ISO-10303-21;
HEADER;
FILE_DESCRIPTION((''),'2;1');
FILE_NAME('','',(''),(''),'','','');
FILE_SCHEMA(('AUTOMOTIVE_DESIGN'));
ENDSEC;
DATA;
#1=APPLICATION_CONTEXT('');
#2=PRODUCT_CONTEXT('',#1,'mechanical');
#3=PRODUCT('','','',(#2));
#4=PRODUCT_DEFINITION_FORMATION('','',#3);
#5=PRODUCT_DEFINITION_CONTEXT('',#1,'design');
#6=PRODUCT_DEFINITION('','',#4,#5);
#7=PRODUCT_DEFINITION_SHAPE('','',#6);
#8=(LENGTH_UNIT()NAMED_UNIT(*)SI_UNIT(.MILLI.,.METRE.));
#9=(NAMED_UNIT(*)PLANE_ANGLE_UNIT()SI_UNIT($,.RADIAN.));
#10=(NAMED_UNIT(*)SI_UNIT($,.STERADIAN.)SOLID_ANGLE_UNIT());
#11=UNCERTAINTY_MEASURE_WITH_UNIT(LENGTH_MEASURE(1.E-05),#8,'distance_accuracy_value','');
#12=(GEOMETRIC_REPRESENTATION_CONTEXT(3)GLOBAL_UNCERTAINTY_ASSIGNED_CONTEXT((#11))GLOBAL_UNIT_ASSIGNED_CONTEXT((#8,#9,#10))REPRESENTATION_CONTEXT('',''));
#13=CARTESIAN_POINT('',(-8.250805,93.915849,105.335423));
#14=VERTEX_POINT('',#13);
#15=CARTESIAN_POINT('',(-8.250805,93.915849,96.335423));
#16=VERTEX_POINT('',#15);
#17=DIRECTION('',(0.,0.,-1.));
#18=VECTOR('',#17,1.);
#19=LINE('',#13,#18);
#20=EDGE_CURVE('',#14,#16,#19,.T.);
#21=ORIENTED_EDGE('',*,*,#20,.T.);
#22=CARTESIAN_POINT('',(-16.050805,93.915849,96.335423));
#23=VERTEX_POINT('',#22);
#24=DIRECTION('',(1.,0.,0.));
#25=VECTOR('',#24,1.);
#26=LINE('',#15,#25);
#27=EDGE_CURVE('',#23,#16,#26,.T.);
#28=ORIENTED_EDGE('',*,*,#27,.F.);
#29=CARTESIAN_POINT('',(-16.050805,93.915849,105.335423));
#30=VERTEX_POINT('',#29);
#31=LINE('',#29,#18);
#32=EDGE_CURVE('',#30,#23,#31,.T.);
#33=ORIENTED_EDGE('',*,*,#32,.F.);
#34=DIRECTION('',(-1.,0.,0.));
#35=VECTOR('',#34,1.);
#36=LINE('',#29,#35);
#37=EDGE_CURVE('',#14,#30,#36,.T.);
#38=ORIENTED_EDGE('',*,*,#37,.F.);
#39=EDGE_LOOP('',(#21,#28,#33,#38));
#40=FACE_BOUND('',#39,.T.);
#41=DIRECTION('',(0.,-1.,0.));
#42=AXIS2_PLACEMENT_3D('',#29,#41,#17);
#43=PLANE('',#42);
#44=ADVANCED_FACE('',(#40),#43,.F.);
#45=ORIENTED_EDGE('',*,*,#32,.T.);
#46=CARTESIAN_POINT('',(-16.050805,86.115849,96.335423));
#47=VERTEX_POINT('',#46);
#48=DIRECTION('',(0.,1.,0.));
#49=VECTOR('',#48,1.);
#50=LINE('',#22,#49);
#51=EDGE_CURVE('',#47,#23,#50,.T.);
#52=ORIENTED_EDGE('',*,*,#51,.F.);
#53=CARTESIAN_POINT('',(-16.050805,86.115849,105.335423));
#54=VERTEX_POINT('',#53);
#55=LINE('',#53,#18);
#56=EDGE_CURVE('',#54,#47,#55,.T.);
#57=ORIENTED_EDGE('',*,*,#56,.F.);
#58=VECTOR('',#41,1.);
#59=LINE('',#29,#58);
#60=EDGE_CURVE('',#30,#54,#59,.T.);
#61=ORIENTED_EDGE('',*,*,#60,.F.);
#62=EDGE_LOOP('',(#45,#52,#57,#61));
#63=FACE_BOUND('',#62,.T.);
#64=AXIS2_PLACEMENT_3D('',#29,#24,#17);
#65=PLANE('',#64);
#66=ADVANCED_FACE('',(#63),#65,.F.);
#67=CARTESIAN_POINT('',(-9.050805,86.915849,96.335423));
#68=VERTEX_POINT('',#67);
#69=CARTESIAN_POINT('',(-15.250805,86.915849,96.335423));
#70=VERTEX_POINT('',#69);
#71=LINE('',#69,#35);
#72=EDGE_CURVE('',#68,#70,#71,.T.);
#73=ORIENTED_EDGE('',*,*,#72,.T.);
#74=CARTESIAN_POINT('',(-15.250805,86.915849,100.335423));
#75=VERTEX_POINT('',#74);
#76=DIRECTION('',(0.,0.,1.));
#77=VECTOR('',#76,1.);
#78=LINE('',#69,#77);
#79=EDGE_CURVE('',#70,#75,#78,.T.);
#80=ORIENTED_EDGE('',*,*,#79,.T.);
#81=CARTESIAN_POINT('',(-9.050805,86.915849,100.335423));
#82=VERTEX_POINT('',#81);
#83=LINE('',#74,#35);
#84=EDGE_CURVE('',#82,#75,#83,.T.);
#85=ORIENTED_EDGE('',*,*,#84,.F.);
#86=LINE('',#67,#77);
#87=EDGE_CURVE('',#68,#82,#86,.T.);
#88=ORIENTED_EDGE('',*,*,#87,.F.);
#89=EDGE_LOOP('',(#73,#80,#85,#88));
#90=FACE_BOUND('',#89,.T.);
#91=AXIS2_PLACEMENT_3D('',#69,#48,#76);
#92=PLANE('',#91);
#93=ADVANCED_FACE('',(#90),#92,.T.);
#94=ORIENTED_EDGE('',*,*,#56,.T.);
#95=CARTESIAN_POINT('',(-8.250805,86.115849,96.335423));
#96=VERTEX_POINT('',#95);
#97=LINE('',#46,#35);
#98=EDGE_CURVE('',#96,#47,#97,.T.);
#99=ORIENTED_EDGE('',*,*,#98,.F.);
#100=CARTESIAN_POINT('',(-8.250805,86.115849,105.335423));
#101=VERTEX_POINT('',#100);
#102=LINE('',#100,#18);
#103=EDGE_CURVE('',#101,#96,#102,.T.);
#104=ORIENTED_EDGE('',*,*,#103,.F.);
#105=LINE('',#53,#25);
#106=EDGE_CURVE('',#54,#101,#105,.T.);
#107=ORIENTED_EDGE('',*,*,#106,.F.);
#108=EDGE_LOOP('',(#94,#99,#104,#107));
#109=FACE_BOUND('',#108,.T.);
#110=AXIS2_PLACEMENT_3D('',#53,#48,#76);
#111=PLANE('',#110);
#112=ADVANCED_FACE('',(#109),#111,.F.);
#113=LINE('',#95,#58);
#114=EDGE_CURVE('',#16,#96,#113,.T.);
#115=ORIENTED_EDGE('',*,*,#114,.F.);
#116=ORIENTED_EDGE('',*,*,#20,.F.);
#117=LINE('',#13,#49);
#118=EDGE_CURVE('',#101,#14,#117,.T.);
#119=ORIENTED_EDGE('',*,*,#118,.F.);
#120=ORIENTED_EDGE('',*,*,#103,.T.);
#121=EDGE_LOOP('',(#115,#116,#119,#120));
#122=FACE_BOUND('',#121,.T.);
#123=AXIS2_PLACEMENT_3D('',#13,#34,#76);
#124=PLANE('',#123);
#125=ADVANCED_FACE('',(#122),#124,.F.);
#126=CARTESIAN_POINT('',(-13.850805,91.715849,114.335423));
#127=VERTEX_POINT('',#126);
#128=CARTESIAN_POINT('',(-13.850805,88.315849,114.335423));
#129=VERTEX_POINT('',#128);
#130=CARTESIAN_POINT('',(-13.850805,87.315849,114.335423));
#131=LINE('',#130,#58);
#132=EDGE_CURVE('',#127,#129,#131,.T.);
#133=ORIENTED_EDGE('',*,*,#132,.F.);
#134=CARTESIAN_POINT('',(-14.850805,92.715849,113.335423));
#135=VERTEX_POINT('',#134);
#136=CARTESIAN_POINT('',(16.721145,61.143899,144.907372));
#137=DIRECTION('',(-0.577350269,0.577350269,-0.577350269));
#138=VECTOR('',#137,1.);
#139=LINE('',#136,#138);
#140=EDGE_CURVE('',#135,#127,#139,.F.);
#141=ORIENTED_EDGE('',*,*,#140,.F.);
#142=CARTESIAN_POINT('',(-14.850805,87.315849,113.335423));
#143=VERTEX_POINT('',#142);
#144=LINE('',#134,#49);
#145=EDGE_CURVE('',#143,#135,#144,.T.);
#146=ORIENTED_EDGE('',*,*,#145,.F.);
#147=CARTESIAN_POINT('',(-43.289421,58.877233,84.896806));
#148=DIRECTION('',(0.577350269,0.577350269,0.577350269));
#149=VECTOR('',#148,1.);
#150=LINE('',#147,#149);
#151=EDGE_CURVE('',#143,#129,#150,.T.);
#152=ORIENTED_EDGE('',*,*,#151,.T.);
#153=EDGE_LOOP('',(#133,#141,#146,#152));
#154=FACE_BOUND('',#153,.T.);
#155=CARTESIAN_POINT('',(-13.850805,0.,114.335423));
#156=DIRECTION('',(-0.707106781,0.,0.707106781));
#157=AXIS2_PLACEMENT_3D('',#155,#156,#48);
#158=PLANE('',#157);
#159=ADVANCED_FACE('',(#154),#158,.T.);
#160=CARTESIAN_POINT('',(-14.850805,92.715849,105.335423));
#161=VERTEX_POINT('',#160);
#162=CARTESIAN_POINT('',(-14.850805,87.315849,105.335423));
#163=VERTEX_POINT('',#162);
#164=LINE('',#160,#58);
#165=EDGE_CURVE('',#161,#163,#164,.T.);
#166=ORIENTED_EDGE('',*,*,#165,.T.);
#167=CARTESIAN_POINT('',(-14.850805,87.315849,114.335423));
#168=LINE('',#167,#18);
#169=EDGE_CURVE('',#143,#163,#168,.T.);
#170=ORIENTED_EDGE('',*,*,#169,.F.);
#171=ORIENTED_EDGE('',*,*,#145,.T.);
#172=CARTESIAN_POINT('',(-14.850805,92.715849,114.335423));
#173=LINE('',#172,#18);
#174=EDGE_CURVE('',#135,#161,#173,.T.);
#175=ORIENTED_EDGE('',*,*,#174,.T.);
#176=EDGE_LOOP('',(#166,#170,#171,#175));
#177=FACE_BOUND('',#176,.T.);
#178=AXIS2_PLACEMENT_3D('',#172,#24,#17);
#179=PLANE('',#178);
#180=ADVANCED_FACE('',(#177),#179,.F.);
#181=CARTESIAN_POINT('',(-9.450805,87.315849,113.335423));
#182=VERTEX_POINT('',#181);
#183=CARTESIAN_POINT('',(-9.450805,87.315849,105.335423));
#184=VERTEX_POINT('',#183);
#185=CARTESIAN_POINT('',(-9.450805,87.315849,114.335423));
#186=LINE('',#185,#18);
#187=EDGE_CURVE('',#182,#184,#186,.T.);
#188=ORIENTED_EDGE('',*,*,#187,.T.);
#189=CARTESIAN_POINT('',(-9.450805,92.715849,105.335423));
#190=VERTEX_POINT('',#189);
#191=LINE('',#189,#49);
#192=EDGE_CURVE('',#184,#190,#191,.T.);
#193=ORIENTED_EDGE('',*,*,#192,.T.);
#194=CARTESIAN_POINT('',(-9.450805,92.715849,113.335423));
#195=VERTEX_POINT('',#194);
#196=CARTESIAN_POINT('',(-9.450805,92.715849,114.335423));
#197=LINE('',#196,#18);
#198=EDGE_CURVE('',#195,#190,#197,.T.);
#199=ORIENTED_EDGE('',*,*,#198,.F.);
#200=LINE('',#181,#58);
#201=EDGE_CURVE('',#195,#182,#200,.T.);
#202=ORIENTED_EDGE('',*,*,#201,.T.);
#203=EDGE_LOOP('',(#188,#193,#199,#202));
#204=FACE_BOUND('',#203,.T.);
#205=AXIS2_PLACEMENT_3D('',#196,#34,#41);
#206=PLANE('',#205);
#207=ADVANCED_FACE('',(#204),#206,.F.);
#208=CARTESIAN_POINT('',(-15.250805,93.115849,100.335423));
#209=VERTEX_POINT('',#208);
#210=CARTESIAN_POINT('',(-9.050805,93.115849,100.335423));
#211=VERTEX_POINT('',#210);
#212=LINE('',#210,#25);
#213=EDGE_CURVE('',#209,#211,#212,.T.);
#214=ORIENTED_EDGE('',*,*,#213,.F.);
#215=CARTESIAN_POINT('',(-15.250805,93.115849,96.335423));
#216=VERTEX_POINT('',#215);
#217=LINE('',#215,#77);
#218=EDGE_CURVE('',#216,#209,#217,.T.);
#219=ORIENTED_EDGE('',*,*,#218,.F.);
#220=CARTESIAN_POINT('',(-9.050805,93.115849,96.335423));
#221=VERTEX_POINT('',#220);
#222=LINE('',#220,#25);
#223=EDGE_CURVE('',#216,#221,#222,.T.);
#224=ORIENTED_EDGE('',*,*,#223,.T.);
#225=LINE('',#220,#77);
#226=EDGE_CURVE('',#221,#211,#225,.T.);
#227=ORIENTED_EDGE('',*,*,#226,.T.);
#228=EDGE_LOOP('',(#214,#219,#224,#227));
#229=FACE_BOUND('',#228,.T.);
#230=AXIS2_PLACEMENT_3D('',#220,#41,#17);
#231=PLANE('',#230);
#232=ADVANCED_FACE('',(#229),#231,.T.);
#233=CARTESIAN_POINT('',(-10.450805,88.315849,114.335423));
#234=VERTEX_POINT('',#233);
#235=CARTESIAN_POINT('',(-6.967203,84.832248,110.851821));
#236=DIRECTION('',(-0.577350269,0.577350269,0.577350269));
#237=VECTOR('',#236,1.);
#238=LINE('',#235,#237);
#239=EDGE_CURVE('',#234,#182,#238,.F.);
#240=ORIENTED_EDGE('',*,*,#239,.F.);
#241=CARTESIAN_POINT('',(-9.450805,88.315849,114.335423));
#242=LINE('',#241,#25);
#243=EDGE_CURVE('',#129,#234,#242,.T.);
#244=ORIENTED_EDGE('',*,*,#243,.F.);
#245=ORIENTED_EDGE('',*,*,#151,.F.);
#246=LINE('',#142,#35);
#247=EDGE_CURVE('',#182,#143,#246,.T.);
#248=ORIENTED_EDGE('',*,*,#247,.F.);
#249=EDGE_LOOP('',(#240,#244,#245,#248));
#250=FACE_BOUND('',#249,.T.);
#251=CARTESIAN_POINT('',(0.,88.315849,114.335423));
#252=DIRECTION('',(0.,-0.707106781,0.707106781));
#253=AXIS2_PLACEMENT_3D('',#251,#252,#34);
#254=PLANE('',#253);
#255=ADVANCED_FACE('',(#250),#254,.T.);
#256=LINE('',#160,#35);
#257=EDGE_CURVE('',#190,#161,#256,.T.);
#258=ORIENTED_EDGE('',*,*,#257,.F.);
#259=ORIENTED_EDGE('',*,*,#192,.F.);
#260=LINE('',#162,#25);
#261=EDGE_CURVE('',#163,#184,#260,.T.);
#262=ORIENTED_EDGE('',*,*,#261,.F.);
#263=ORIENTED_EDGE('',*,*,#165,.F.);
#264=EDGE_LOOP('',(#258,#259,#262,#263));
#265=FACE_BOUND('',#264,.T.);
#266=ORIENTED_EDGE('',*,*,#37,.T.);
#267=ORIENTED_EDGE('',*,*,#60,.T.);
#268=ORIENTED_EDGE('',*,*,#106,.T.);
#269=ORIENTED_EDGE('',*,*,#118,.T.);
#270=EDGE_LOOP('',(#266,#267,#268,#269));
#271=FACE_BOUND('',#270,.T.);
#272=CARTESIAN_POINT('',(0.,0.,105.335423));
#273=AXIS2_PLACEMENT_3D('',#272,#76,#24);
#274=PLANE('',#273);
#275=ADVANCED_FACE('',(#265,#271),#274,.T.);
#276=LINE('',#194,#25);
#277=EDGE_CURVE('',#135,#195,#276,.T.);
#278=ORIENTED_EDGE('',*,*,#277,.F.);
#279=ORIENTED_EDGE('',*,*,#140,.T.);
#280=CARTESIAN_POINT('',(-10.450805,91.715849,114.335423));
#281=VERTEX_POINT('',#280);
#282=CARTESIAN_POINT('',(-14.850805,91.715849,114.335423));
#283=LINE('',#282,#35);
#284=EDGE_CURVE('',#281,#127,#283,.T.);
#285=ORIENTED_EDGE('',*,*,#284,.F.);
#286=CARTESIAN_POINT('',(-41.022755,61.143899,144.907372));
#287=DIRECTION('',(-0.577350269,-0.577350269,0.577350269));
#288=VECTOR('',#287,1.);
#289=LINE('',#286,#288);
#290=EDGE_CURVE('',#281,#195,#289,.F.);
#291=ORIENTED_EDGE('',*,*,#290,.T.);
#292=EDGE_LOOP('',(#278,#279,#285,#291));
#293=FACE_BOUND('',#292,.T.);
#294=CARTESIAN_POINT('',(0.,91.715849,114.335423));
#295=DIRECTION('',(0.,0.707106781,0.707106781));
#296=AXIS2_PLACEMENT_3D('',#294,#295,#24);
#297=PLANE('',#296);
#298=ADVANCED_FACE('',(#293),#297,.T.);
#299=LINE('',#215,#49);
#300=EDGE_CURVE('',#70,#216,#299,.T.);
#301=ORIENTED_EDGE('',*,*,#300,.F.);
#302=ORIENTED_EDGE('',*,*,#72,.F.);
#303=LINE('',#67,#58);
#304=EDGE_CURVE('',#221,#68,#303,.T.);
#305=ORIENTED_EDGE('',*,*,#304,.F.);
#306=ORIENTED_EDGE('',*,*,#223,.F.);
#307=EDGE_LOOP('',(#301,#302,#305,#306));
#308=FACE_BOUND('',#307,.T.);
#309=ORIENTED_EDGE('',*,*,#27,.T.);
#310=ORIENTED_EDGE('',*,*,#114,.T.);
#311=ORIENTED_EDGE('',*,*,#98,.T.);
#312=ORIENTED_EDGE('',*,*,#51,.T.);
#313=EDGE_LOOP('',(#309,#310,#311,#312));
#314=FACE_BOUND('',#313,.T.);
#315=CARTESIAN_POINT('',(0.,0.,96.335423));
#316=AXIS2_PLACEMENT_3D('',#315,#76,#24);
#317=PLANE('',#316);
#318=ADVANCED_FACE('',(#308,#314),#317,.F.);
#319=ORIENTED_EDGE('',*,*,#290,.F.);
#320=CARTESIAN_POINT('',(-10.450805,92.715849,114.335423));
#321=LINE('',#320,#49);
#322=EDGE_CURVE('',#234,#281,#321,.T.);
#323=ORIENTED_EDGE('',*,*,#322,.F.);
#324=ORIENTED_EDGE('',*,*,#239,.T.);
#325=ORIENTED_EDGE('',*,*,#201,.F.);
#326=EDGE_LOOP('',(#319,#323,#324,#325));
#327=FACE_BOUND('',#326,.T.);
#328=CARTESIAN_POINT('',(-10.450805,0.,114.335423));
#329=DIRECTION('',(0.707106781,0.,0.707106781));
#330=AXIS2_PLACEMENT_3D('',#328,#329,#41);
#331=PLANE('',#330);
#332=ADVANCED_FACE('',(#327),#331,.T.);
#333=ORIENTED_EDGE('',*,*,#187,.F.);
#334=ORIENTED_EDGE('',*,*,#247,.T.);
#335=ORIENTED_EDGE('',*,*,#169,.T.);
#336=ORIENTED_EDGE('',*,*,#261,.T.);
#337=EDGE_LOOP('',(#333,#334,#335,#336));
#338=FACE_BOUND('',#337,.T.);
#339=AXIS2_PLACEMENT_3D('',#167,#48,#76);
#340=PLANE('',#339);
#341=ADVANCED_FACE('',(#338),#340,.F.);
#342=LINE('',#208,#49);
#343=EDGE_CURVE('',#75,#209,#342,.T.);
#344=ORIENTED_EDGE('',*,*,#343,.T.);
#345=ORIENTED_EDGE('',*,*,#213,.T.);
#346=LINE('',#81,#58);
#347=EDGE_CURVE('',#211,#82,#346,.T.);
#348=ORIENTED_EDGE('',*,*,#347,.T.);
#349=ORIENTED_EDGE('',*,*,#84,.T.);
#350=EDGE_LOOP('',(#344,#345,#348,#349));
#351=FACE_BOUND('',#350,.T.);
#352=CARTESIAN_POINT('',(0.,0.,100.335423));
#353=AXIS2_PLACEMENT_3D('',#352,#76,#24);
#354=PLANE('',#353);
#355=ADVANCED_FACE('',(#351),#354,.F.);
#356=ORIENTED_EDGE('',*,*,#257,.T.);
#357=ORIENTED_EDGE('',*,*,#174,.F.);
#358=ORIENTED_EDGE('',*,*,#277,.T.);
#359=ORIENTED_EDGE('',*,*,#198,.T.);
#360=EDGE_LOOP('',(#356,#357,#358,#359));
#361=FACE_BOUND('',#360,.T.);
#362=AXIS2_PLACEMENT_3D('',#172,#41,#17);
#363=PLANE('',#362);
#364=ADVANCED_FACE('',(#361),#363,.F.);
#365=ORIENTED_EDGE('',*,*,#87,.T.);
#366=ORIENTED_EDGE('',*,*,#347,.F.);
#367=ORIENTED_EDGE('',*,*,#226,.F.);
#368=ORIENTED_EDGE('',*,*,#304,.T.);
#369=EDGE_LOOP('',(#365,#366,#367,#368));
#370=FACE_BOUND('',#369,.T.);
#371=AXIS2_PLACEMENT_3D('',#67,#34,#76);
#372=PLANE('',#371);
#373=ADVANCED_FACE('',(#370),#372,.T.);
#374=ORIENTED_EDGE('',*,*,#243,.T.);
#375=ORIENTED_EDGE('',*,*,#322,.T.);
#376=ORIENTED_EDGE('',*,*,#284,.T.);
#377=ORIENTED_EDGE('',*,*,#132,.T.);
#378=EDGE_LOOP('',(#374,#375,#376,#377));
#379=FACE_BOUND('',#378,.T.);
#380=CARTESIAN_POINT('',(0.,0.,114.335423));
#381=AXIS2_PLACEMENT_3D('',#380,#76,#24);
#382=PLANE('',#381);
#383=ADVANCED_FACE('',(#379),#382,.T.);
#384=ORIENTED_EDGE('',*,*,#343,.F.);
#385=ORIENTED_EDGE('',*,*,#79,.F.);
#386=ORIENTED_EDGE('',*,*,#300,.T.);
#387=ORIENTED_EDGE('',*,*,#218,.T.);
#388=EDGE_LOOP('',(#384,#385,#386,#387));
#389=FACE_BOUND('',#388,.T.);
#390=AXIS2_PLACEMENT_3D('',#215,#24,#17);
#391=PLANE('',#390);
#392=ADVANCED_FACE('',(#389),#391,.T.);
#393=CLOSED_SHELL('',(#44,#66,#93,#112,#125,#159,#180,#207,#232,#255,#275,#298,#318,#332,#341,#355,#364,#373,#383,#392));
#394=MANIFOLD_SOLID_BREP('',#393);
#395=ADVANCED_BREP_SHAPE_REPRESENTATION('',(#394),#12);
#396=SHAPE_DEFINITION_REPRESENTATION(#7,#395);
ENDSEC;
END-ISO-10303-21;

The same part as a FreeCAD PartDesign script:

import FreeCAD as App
import Part
import Sketcher

V = App.Vector
Q = App.Units.Quantity


def edges_at(feature, points):
    """Names of the edges that pass closest to the given points."""
    edges = feature.Shape.Edges
    near = lambda p: min(range(len(edges)), key=lambda i: edges[i].distToShape(Part.Vertex(*p))[0])
    return sorted({f"Edge{near(p) + 1}" for p in points})


def add_polygon(sketch, points):
    """Adds a closed chain of lines whose ends are joined by coincident constraints."""
    first, n = sketch.GeometryCount, len(points)
    for a, b in zip(points, points[1:] + points[:1]):
        sketch.addGeometry(Part.LineSegment(App.Vector(*a, 0), App.Vector(*b, 0)), False)
    for i in range(n):
        sketch.addConstraint(Sketcher.Constraint("Coincident", first + i, 2, first + (i + 1) % n, 1))

doc = App.newDocument("Part")
body = doc.addObject("PartDesign::Body", "Body")

# Sketch on XY plane
sketch1 = body.newObject("Sketcher::SketchObject", "Sketch")
sketch1.AttachmentSupport = (doc.getObject("XY_Plane"), [""])
sketch1.MapMode = "FlatFace"
sketch1.AttachmentOffset = App.Placement(V(0, 0, 100.335423), App.Rotation())
add_polygon(sketch1, [(-16, 94), (-16, 86), (-8, 86), (-8, 94)])  # lines 0-3
sketch1.addConstraint([
    Sketcher.Constraint("Vertical", 0),
    Sketcher.Constraint("Horizontal", 1),
    Sketcher.Constraint("Vertical", 2),
    Sketcher.Constraint("Horizontal", 3),
    Sketcher.Constraint("Equal", 3, 0),
    Sketcher.Constraint("DistanceX", 1, 1, 1, 2, Q("7.8 mm")),
    Sketcher.Constraint("DistanceY", -1, 1, 0, 2, Q("86.115849 mm")),
    Sketcher.Constraint("DistanceX", 0, 2, -1, 1, Q("16.050805 mm")),
])
pad1 = body.newObject("PartDesign::Pad", "Pad")
pad1.Profile = sketch1
pad1.Length = 5

# Sketch on XY plane
sketch2 = body.newObject("Sketcher::SketchObject", "Sketch001")
sketch2.AttachmentSupport = (doc.getObject("XY_Plane"), [""])
sketch2.MapMode = "FlatFace"
sketch2.AttachmentOffset = App.Placement(V(0, 0, 100.335423), App.Rotation())
add_polygon(sketch2, [(-8, 94), (-8, 86), (-16, 86), (-16, 94)])  # lines 0-3
add_polygon(sketch2, [(-15, 87), (-9, 87), (-9, 93), (-15, 93)])  # lines 4-7
sketch2.addConstraint([
    Sketcher.Constraint("Vertical", 0),
    Sketcher.Constraint("Horizontal", 1),
    Sketcher.Constraint("Vertical", 2),
    Sketcher.Constraint("Horizontal", 3),
    Sketcher.Constraint("Horizontal", 4),
    Sketcher.Constraint("Vertical", 5),
    Sketcher.Constraint("Horizontal", 6),
    Sketcher.Constraint("Vertical", 7),
    Sketcher.Constraint("Equal", 3, 0),
    Sketcher.Constraint("Equal", 6, 5),
    Sketcher.Constraint("DistanceX", 1, 2, 1, 1, Q("7.8 mm")),
    Sketcher.Constraint("DistanceX", 4, 1, 4, 2, Q("6.2 mm")),
    Sketcher.Constraint("DistanceY", 4, 2, 3, 2, Q("7 mm")),
    Sketcher.Constraint("DistanceX", 1, 2, 4, 2, Q("7 mm")),
    Sketcher.Constraint("DistanceY", -1, 1, 0, 2, Q("86.115849 mm")),
    Sketcher.Constraint("DistanceX", 0, 2, -1, 1, Q("8.250805 mm")),
])
pad2 = body.newObject("PartDesign::Pad", "Pad001")
pad2.Profile = sketch2
pad2.Length = 4
pad2.Reversed = True

# Sketch on XY plane
sketch3 = body.newObject("Sketcher::SketchObject", "Sketch002")
sketch3.AttachmentSupport = (doc.getObject("XY_Plane"), [""])
sketch3.MapMode = "FlatFace"
sketch3.AttachmentOffset = App.Placement(V(0, 0, 105.335423), App.Rotation())
add_polygon(sketch3, [(-15, 93), (-15, 87), (-9, 87), (-9, 93)])  # lines 0-3
sketch3.addConstraint([
    Sketcher.Constraint("Vertical", 0),
    Sketcher.Constraint("Horizontal", 1),
    Sketcher.Constraint("Vertical", 2),
    Sketcher.Constraint("Horizontal", 3),
    Sketcher.Constraint("Equal", 3, 0),
    Sketcher.Constraint("DistanceX", 1, 1, 1, 2, Q("5.4 mm")),
    Sketcher.Constraint("DistanceY", -1, 1, 0, 2, Q("87.315849 mm")),
    Sketcher.Constraint("DistanceX", 0, 2, -1, 1, Q("14.850805 mm")),
])
pad3 = body.newObject("PartDesign::Pad", "Pad002")
pad3.Profile = sketch3
pad3.Length = 9
doc.recompute()

chamfer = body.newObject("PartDesign::Chamfer", "Chamfer")
chamfer.Base = (pad3, edges_at(pad3, [
    (-14.851, 90.016, 114.335),
    (-12.151, 87.316, 114.335),
    (-9.451, 90.016, 114.335),
    (-12.151, 92.716, 114.335),
]))
chamfer.Size = 1

doc.recompute()
